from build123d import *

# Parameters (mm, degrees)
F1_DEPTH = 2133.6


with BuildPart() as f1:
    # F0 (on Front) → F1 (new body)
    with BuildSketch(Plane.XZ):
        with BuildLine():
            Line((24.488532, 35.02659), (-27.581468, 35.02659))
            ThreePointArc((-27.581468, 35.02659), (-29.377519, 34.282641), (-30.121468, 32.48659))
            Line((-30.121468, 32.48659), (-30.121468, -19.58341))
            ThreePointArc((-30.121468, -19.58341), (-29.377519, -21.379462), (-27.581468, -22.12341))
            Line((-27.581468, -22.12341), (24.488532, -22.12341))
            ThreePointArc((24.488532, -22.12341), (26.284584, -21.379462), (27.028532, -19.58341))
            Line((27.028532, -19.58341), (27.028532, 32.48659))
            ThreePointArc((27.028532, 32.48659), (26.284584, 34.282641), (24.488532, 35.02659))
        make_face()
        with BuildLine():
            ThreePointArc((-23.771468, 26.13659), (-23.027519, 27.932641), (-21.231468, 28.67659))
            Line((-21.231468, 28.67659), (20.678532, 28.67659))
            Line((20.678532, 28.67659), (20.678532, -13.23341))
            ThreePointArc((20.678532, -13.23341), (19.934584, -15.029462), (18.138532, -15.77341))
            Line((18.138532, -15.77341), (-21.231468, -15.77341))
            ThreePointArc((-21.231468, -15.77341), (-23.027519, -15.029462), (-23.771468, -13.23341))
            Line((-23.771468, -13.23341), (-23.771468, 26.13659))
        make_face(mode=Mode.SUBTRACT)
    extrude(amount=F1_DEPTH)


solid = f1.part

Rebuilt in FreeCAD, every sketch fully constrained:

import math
import FreeCAD as App
import Part
import Sketcher
from FreeCAD import Vector
Q = App.Units.Quantity

doc = App.newDocument("Part")
body = doc.addObject("PartDesign::Body", "Body")

# Sketch on XZ plane
sketch1 = body.newObject("Sketcher::SketchObject", "Sketch")
sketch1.AttachmentSupport = (doc.getObject("XZ_Plane"), [""])
sketch1.MapMode = "FlatFace"
sketch1.addGeometry([
    Part.LineSegment(Vector(24.5, 35, 0), Vector(-27.6, 35, 0)),  # 0
    Part.ArcOfCircle(Part.Circle(Vector(-27.6, 32.5, 0), Vector(0, 0, 1), 2.5), math.radians(90), math.radians(180)),  # 1
    Part.LineSegment(Vector(-30.1, 32.5, 0), Vector(-30.1, -19.6, 0)),  # 2
    Part.ArcOfCircle(Part.Circle(Vector(-27.6, -19.6, 0), Vector(0, 0, 1), 2.5), math.radians(180), math.radians(270)),  # 3
    Part.LineSegment(Vector(-27.6, -22.1, 0), Vector(24.5, -22.1, 0)),  # 4
    Part.ArcOfCircle(Part.Circle(Vector(24.5, -19.6, 0), Vector(0, 0, 1), 2.5), math.radians(-90), math.radians(0)),  # 5
    Part.LineSegment(Vector(27, -19.6, 0), Vector(27, 32.5, 0)),  # 6
    Part.ArcOfCircle(Part.Circle(Vector(24.5, 32.5, 0), Vector(0, 0, 1), 2.5), math.radians(0), math.radians(90)),  # 7
    Part.LineSegment(Vector(-23.8, -13.2, 0), Vector(-23.8, 26.1, 0)),  # 8
    Part.ArcOfCircle(Part.Circle(Vector(-21.2, 26.1, 0), Vector(0, 0, 1), 2.5), math.radians(90), math.radians(180)),  # 9
    Part.LineSegment(Vector(-21.2, 28.7, 0), Vector(20.7, 28.7, 0)),  # 10
    Part.LineSegment(Vector(20.7, 28.7, 0), Vector(20.7, -13.2, 0)),  # 11
    Part.ArcOfCircle(Part.Circle(Vector(18.1, -13.2, 0), Vector(0, 0, 1), 2.5), math.radians(-90), math.radians(0)),  # 12
    Part.LineSegment(Vector(18.1, -15.8, 0), Vector(-21.2, -15.8, 0)),  # 13
    Part.ArcOfCircle(Part.Circle(Vector(-21.2, -13.2, 0), Vector(0, 0, 1), 2.5), math.radians(180), math.radians(270)),  # 14
], False)
sketch1.addConstraint([
    Sketcher.Constraint("Tangent", 0, 2, 1, 1),
    Sketcher.Constraint("Tangent", 1, 2, 2, 1),
    Sketcher.Constraint("Tangent", 2, 2, 3, 1),
    Sketcher.Constraint("Tangent", 3, 2, 4, 1),
    Sketcher.Constraint("Tangent", 4, 2, 5, 1),
    Sketcher.Constraint("Tangent", 5, 2, 6, 1),
    Sketcher.Constraint("Tangent", 6, 2, 7, 1),
    Sketcher.Constraint("Tangent", 7, 2, 0, 1),
    Sketcher.Constraint("Tangent", 8, 2, 9, 2),
    Sketcher.Constraint("Tangent", 9, 1, 10, 1),
    Sketcher.Constraint("Coincident", 10, 2, 11, 1),
    Sketcher.Constraint("Tangent", 11, 2, 12, 2),
    Sketcher.Constraint("Tangent", 12, 1, 13, 1),
    Sketcher.Constraint("Tangent", 13, 2, 14, 2),
    Sketcher.Constraint("Tangent", 14, 1, 8, 1),
    Sketcher.Constraint("Horizontal", 0),
    Sketcher.Constraint("Vertical", 2),
    Sketcher.Constraint("Horizontal", 4),
    Sketcher.Constraint("Vertical", 6),
    Sketcher.Constraint("Vertical", 8),
    Sketcher.Constraint("Horizontal", 10),
    Sketcher.Constraint("Vertical", 11),
    Sketcher.Constraint("Horizontal", 13),
    Sketcher.Constraint("Equal", 1, 3),
    Sketcher.Constraint("Equal", 3, 5),
    Sketcher.Constraint("Equal", 5, 7),
    Sketcher.Constraint("Equal", 7, 9),
    Sketcher.Constraint("Equal", 7, 12),
    Sketcher.Constraint("Equal", 12, 14),
    Sketcher.Constraint("Equal", 4, 2),
    Sketcher.Constraint("Equal", 13, 8),
    Sketcher.Constraint("Radius", 1, Q("0.1 in")),
    Sketcher.Constraint("DistanceX", 0, 2, 0, 1, Q("2.05 in")),
    Sketcher.Constraint("DistanceX", 10, 1, 10, 2, Q("1.65 in")),
    Sketcher.Constraint("DistanceY", 3, 3, 9, 3, Q("1.8 in")),
    Sketcher.Constraint("DistanceX", 9, 3, 7, 3, Q("1.8 in")),
    Sketcher.Constraint("DistanceY", -1, 1, 1, 3, 32.486589),
    Sketcher.Constraint("DistanceX", 3, 3, -1, 1, 27.581469),
])
pad1 = body.newObject("PartDesign::Pad", "Pad")
pad1.Profile = sketch1
pad1.Length = Q("84 in")

doc.recompute()
